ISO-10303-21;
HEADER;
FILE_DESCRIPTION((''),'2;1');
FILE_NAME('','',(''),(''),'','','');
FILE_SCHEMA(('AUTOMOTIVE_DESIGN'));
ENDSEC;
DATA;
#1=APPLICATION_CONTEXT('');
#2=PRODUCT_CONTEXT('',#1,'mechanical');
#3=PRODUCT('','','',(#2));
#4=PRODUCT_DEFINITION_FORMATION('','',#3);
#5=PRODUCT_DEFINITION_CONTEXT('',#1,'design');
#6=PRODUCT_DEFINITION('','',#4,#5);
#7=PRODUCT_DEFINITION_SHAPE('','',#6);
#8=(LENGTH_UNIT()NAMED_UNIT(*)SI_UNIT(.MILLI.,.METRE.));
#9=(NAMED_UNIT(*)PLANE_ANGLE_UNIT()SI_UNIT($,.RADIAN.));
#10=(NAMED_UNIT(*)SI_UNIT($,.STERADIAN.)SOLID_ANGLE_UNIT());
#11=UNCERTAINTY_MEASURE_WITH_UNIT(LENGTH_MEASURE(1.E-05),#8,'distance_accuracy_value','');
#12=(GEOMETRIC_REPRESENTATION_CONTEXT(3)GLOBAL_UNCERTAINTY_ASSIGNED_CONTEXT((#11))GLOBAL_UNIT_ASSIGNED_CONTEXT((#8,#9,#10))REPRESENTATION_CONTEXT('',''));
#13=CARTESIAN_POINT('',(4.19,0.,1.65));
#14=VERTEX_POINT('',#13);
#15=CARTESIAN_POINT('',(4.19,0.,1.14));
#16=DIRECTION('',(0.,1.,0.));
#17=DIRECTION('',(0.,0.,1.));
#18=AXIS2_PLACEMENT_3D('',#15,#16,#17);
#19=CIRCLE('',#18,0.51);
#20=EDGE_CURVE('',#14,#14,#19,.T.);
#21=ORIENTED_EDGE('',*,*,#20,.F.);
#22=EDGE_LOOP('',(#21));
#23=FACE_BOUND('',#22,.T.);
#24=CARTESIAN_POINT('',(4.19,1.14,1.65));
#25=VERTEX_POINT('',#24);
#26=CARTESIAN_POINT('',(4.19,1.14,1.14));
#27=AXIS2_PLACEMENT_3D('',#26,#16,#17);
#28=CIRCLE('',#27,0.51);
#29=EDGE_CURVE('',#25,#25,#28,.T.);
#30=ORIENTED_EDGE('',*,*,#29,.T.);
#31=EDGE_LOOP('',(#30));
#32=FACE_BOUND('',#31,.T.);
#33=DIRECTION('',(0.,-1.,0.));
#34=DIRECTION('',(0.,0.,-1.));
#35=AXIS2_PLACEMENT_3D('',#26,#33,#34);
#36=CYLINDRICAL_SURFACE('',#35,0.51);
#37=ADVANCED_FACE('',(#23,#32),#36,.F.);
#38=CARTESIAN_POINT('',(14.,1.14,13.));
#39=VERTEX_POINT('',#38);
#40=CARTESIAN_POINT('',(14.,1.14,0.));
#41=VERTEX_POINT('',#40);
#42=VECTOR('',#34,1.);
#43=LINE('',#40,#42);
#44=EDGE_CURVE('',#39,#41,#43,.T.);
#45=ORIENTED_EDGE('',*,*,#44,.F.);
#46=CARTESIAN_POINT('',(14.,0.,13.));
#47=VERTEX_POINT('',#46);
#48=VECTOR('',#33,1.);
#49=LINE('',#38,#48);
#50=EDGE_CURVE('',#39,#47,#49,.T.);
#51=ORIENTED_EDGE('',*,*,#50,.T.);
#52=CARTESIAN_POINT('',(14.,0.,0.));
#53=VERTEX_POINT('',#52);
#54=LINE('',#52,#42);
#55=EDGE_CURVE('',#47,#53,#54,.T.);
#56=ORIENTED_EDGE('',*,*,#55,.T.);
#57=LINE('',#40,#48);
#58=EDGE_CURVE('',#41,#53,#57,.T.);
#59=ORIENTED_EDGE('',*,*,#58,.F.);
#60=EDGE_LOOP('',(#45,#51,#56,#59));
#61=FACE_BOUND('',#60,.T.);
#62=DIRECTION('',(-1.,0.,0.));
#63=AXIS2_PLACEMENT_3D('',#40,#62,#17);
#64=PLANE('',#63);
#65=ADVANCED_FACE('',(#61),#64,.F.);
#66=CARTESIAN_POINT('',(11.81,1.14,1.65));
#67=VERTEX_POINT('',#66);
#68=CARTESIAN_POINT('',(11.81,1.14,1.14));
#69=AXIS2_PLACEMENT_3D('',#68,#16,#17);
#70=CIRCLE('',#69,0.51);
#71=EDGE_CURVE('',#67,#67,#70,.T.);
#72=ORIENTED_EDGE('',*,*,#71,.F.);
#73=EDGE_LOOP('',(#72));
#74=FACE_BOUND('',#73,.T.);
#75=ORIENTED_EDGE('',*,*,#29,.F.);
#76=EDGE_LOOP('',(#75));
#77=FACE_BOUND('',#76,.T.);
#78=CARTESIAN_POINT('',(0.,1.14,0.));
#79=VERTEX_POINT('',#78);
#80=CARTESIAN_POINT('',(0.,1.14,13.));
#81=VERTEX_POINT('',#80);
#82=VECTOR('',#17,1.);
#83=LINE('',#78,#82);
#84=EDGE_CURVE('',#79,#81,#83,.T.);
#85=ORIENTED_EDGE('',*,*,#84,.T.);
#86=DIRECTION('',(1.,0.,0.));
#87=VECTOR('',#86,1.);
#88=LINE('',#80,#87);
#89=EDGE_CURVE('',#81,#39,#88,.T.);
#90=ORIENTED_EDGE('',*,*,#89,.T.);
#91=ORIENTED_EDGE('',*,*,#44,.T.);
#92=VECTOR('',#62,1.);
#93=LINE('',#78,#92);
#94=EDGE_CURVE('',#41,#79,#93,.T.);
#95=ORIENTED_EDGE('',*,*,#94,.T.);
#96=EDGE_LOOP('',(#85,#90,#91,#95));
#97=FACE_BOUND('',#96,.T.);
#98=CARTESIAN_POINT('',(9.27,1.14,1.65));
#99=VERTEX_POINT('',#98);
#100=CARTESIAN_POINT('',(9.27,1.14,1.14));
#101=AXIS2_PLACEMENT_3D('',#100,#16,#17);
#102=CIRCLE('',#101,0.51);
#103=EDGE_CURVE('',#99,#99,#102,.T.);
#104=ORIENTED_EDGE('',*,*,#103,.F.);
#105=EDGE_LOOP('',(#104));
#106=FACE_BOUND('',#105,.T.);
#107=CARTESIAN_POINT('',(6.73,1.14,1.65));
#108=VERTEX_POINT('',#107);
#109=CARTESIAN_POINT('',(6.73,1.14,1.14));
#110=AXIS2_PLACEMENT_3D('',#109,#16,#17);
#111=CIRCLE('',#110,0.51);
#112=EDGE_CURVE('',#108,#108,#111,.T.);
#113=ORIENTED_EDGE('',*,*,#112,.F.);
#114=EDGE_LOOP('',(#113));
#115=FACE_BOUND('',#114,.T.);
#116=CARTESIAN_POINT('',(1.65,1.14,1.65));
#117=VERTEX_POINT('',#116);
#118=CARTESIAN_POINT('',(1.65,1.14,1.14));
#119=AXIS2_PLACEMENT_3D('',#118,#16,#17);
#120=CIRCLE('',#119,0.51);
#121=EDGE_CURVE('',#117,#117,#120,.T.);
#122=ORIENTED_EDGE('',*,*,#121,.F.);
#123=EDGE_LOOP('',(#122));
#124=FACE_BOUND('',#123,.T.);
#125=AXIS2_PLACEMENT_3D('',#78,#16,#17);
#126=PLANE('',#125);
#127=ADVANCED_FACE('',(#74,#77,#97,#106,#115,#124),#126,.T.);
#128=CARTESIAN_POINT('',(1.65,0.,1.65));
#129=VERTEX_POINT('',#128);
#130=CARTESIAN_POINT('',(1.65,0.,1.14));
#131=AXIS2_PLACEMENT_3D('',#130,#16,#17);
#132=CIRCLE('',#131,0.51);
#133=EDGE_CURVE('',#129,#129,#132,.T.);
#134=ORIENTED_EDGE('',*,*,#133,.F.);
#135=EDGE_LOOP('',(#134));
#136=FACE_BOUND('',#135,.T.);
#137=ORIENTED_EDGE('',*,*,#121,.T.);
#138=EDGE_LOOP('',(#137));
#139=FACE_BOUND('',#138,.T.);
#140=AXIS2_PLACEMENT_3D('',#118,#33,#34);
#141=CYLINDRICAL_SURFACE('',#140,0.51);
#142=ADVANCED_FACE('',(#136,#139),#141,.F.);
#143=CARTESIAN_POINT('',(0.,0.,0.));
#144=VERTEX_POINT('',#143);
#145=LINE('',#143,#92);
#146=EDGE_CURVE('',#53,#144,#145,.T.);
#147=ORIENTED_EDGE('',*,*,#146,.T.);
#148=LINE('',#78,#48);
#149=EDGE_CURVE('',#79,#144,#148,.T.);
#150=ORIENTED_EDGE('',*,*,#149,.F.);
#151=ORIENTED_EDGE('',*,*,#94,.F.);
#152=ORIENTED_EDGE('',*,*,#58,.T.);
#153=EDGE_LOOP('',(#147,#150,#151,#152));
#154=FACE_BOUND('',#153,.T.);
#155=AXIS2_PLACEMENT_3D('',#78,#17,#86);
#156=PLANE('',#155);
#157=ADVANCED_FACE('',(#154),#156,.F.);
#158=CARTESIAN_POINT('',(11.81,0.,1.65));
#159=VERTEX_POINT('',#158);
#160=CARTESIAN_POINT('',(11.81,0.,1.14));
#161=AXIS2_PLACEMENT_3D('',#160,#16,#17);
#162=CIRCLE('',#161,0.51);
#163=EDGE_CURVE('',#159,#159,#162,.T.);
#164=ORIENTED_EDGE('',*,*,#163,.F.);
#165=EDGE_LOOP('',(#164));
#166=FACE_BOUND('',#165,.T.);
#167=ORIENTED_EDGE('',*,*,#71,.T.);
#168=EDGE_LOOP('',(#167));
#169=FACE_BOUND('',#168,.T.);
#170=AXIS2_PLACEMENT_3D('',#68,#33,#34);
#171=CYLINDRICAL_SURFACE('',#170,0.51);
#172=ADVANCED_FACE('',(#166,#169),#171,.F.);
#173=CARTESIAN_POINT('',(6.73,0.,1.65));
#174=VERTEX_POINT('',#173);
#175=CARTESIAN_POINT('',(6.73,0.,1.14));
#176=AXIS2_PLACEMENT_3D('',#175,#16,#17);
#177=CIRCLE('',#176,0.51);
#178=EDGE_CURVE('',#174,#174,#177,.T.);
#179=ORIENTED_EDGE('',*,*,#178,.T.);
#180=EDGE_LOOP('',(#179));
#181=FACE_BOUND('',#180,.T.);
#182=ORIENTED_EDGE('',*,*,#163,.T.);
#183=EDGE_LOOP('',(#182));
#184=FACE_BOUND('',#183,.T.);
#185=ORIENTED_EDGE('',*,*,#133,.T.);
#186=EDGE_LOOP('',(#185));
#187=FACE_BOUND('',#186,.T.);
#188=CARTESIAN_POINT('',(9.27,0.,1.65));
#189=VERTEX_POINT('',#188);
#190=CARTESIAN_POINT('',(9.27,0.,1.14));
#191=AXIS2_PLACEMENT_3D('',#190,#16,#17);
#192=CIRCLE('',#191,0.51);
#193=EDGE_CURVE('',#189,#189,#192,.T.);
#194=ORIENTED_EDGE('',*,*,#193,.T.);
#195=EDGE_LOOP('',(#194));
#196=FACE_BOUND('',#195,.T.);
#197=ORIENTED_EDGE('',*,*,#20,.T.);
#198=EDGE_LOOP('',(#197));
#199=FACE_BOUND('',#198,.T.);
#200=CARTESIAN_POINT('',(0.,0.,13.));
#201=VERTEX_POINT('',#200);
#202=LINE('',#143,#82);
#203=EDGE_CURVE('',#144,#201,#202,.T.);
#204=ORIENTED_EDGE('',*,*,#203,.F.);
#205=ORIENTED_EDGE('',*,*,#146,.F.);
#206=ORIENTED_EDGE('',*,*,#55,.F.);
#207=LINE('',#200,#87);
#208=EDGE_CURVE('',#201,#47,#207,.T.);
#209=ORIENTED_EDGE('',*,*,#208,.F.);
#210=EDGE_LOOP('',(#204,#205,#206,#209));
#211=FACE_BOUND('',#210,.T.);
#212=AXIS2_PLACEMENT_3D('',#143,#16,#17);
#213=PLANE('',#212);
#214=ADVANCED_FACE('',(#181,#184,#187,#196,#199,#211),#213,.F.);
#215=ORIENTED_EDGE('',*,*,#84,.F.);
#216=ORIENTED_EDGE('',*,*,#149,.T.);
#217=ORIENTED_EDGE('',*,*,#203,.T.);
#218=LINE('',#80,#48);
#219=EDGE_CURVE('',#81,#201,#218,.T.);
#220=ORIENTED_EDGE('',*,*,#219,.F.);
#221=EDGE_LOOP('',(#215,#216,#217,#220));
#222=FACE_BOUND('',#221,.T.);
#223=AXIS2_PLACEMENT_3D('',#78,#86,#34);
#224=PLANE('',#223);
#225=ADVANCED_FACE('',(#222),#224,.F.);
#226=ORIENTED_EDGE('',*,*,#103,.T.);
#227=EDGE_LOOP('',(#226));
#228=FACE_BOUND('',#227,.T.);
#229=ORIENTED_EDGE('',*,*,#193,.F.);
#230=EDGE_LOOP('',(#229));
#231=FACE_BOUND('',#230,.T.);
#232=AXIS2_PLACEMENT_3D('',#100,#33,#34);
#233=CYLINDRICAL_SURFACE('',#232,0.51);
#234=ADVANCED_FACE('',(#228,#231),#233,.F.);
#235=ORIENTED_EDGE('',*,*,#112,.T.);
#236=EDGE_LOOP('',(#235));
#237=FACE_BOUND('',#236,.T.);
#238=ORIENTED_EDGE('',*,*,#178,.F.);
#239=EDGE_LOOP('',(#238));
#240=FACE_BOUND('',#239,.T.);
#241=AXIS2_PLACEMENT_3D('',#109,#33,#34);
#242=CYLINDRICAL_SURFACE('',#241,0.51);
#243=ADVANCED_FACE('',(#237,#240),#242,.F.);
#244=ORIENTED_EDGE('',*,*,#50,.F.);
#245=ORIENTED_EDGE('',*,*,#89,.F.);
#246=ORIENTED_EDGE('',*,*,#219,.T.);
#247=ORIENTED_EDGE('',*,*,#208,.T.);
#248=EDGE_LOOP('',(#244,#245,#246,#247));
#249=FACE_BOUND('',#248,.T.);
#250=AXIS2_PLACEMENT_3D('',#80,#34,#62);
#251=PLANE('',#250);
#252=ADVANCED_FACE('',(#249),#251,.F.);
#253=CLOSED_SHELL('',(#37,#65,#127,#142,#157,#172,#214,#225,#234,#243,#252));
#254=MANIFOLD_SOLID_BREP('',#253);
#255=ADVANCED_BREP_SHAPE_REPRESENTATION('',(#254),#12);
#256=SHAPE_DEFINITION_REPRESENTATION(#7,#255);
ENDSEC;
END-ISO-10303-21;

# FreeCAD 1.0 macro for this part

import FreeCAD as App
import Part
import Sketcher


def add_polygon(sketch, points):
    """Adds a closed chain of lines whose ends are joined by coincident constraints."""
    first, n = sketch.GeometryCount, len(points)
    for a, b in zip(points, points[1:] + points[:1]):
        sketch.addGeometry(Part.LineSegment(App.Vector(*a, 0), App.Vector(*b, 0)), False)
    for i in range(n):
        sketch.addConstraint(Sketcher.Constraint("Coincident", first + i, 2, first + (i + 1) % n, 1))

doc = App.newDocument("Part")
body = doc.addObject("PartDesign::Body", "Body")

# Sketch on XZ plane
sketch1 = body.newObject("Sketcher::SketchObject", "Sketch")
sketch1.AttachmentSupport = (doc.getObject("XZ_Plane"), [""])
sketch1.MapMode = "FlatFace"
add_polygon(sketch1, [(0, 0), (0, 13), (14, 13), (14, 0)])  # lines 0-3
sketch1.addGeometry(Part.Circle(App.Vector(1.6, 1.1, 0), App.Vector(0, 0, 1), 0.5), False)  # 4
sketch1.addGeometry(Part.Circle(App.Vector(4.2, 1.1, 0), App.Vector(0, 0, 1), 0.5), False)  # 5
sketch1.addGeometry(Part.Circle(App.Vector(6.7, 1.1, 0), App.Vector(0, 0, 1), 0.5), False)  # 6
sketch1.addGeometry(Part.Circle(App.Vector(9.3, 1.1, 0), App.Vector(0, 0, 1), 0.5), False)  # 7
sketch1.addGeometry(Part.Circle(App.Vector(11.8, 1.1, 0), App.Vector(0, 0, 1), 0.5), False)  # 8
sketch1.addConstraint([
    Sketcher.Constraint("Vertical", 0),
    Sketcher.Constraint("Horizontal", 1),
    Sketcher.Constraint("Vertical", 2),
    Sketcher.Constraint("Horizontal", 3),
    Sketcher.Constraint("Coincident", 3, 2, -1, 1),
    Sketcher.Constraint("Equal", 4, 5),
    Sketcher.Constraint("Equal", 5, 6),
    Sketcher.Constraint("Equal", 6, 7),
    Sketcher.Constraint("Equal", 7, 8),
    Sketcher.Constraint("Horizontal", 4, 3, 5, 3),
    Sketcher.Constraint("Horizontal", 5, 3, 6, 3),
    Sketcher.Constraint("Horizontal", 6, 3, 7, 3),
    Sketcher.Constraint("Horizontal", 7, 3, 8, 3),
    Sketcher.Constraint("Diameter", 4, 1.02),
    Sketcher.Constraint("DistanceX", 1, 1, 1, 2, 14.0),
    Sketcher.Constraint("DistanceY", 0, 1, 0, 2, 13.0),
    Sketcher.Constraint("DistanceX", -1, 1, 4, 3, 1.65),
    Sketcher.Constraint("DistanceY", -1, 1, 4, 3, 1.14),
    Sketcher.Constraint("DistanceX", -1, 1, 5, 3, 4.19),
    Sketcher.Constraint("DistanceX", -1, 1, 6, 3, 6.73),
    Sketcher.Constraint("DistanceX", -1, 1, 7, 3, 9.27),
    Sketcher.Constraint("DistanceX", -1, 1, 8, 3, 11.81),
])
pad1 = body.newObject("PartDesign::Pad", "Pad")
pad1.Profile = sketch1
pad1.Length = 1.14
pad1.Reversed = True

doc.recompute()
